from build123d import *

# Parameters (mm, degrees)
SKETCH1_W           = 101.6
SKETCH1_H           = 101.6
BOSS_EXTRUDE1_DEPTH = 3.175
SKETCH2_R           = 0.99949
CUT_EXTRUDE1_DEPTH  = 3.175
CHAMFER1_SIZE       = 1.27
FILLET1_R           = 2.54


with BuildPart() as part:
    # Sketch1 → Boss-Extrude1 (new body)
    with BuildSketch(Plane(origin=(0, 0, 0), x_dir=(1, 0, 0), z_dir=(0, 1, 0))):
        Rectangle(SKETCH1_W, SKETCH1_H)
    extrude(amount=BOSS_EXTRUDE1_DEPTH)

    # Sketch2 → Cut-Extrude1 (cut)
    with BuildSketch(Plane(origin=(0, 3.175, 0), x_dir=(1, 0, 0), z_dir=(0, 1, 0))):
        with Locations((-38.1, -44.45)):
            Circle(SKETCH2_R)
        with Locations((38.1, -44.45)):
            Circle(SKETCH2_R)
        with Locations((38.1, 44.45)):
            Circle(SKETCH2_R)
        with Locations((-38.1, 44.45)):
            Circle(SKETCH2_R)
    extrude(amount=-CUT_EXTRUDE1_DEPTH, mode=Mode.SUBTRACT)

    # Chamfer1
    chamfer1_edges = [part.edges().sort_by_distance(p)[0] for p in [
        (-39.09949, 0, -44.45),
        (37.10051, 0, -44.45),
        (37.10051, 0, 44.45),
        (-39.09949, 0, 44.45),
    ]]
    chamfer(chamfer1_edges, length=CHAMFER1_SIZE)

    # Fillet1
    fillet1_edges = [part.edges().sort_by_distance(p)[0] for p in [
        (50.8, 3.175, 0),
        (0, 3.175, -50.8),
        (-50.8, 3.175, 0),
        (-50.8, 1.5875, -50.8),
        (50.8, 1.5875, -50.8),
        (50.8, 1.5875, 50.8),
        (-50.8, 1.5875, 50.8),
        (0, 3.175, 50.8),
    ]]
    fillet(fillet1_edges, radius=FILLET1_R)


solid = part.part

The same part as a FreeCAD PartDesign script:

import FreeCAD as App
import Part
import Sketcher
from FreeCAD import Vector
Q = App.Units.Quantity


def edges_at(feature, points):
    """Names of the edges that pass closest to the given points."""
    edges = feature.Shape.Edges
    near = lambda p: min(range(len(edges)), key=lambda i: edges[i].distToShape(Part.Vertex(*p))[0])
    return sorted({f"Edge{near(p) + 1}" for p in points})

doc = App.newDocument("Part")
params = doc.addObject("Spreadsheet::Sheet", "Params")
for row, (alias, value) in enumerate([
    ("sketch1_width", "4 in"),
    ("pad1_length", "0.125 in"),
    ("pocket1_length", "0.125 in"),
    ("chamfer_size", "0.05 in"),
    ("fillet_radius", "0.1 in"),
], start=1):
    params.set(f"A{row}", alias)
    params.set(f"B{row}", "=" + value)
    params.setAlias(f"B{row}", alias)

body = doc.addObject("PartDesign::Body", "Body")

# Sketch on XZ plane
sketch1 = body.newObject("Sketcher::SketchObject", "Sketch")
sketch1.AttachmentSupport = (doc.getObject("XZ_Plane"), [""])
sketch1.MapMode = "FlatFace"
sketch1.addGeometry([
    Part.LineSegment(Vector(-50.8, -50.8, 0), Vector(-50.8, 50.8, 0)),
    Part.LineSegment(Vector(-50.8, 50.8, 0), Vector(50.8, 50.8, 0)),
    Part.LineSegment(Vector(50.8, 50.8, 0), Vector(50.8, -50.8, 0)),
    Part.LineSegment(Vector(50.8, -50.8, 0), Vector(-50.8, -50.8, 0)),
], False)
sketch1.addConstraint([
    Sketcher.Constraint("Coincident", 0, 2, 1, 1),
    Sketcher.Constraint("Coincident", 1, 2, 2, 1),
    Sketcher.Constraint("Coincident", 2, 2, 3, 1),
    Sketcher.Constraint("Coincident", 3, 2, 0, 1),
    Sketcher.Constraint("Vertical", 0),
    Sketcher.Constraint("Horizontal", 1),
    Sketcher.Constraint("Vertical", 2),
    Sketcher.Constraint("Horizontal", 3),
    Sketcher.Constraint("Symmetric", 0, 2, 2, 2, -1, 1),
    Sketcher.Constraint("Equal", 3, 0),
    Sketcher.Constraint("DistanceX", 1, 1, 1, 2, Q("4 in")),
])
sketch1.setExpression("Constraints[10]", "Params.sketch1_width")
pad1 = body.newObject("PartDesign::Pad", "Pad")
pad1.Profile = sketch1
pad1.setExpression("Length", "Params.pad1_length")
pad1.Reversed = True

# Sketch on XZ plane
sketch2 = body.newObject("Sketcher::SketchObject", "Sketch001")
sketch2.AttachmentSupport = (doc.getObject("XZ_Plane"), [""])
sketch2.MapMode = "FlatFace"
sketch2.AttachmentOffset = App.Placement(Vector(0, 0, -0.125 * 25.4), App.Rotation())
sketch2.addGeometry([
    Part.Circle(Vector(-38.1, 44.45, 0), Vector(0, 0, 1), 0.99949),
    Part.Circle(Vector(38.1, 44.45, 0), Vector(0, 0, 1), 0.99949),
    Part.Circle(Vector(38.1, -44.45, 0), Vector(0, 0, 1), 0.99949),
    Part.Circle(Vector(-38.1, -44.45, 0), Vector(0, 0, 1), 0.99949),
], False)
sketch2.addConstraint([
    Sketcher.Constraint("Equal", 0, 1),
    Sketcher.Constraint("Equal", 1, 2),
    Sketcher.Constraint("Equal", 2, 3),
    Sketcher.Constraint("Symmetric", 0, 3, 2, 3, -1, 1),
    Sketcher.Constraint("Symmetric", 1, 3, 3, 3, -1, 1),
    Sketcher.Constraint("Symmetric", 0, 3, 1, 3, -2),
    Sketcher.Constraint("DistanceX", 0, 3, 1, 3, Q("3 in")),
    Sketcher.Constraint("Diameter", 0, Q("0.0787 in")),
    Sketcher.Constraint("DistanceY", 2, 3, 1, 3, Q("3.5 in")),
])
pocket1 = body.newObject("PartDesign::Pocket", "Pocket")
pocket1.Profile = sketch2
pocket1.setExpression("Length", "Params.pocket1_length")
pocket1.Reversed = True
doc.recompute()

chamfer = body.newObject("PartDesign::Chamfer", "Chamfer")
chamfer.Base = (pocket1, edges_at(pocket1, [
    (-39.099, 0, -44.45),
    (37.101, 0, -44.45),
    (37.101, 0, 44.45),
    (-39.099, 0, 44.45),
]))
chamfer.setExpression("Size", "Params.chamfer_size")
doc.recompute()

fillet = body.newObject("PartDesign::Fillet", "Fillet")
fillet.Base = (chamfer, edges_at(chamfer, [
    (50.8, 3.175, 0),
    (0, 3.175, -50.8),
    (-50.8, 3.175, 0),
    (-50.8, 1.587, -50.8),
    (50.8, 1.587, -50.8),
    (50.8, 1.587, 50.8),
    (-50.8, 1.587, 50.8),
    (0, 3.175, 50.8),
]))
fillet.setExpression("Radius", "Params.fillet_radius")

doc.recompute()
